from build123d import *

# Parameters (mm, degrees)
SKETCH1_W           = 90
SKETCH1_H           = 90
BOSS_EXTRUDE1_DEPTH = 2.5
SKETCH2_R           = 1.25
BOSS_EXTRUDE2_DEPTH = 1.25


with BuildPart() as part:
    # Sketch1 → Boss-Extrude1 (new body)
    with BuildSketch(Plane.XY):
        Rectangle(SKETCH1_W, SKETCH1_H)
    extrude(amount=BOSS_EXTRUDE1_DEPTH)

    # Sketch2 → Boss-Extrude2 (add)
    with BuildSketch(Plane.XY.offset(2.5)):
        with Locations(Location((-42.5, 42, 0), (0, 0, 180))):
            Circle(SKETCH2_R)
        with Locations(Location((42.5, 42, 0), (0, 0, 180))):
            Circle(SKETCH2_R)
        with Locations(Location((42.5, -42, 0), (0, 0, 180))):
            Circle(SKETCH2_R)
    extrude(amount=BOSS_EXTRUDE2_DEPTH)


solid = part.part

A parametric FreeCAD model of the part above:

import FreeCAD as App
import Part
import Sketcher

V = App.Vector
Q = App.Units.Quantity

doc = App.newDocument("Part")
body = doc.addObject("PartDesign::Body", "Body")

sketch1 = doc.addObject("Sketcher::SketchObject", "Sketch")
body.addObject(sketch1)
sketch1.AttachmentSupport = (doc.XY_Plane, [""])
sketch1.MapMode = "FlatFace"
sketch1.addGeometry([
    Part.LineSegment(V(-45, 45, 0), V(-45, -45, 0)),
    Part.LineSegment(V(-45, -45, 0), V(45, -45, 0)),
    Part.LineSegment(V(45, -45, 0), V(45, 45, 0)),
    Part.LineSegment(V(45, 45, 0), V(-45, 45, 0)),
], False)
sketch1.addConstraint([
    Sketcher.Constraint("Coincident", 0, 2, 1, 1),
    Sketcher.Constraint("Coincident", 1, 2, 2, 1),
    Sketcher.Constraint("Coincident", 2, 2, 3, 1),
    Sketcher.Constraint("Coincident", 3, 2, 0, 1),
    Sketcher.Constraint("Vertical", 0),
    Sketcher.Constraint("Horizontal", 1),
    Sketcher.Constraint("Vertical", 2),
    Sketcher.Constraint("Horizontal", 3),
    Sketcher.Constraint("Symmetric", 0, 2, 2, 2, -1, 1),
    Sketcher.Constraint("Equal", 3, 0),
    Sketcher.Constraint("DistanceX", 1, 1, 1, 2, Q("90 mm")),
])
pad1 = doc.addObject("PartDesign::Pad", "Pad")
body.addObject(pad1)
pad1.Profile = sketch1
pad1.Length = 2.5

sketch2 = doc.addObject("Sketcher::SketchObject", "Sketch001")
body.addObject(sketch2)
sketch2.AttachmentSupport = (doc.XY_Plane, [""])
sketch2.MapMode = "FlatFace"
sketch2.AttachmentOffset = App.Placement(V(0, 0, 2.5), App.Rotation())
sketch2.addGeometry([
    Part.Circle(V(-42.5, 42, 0), V(0, 0, 1), 1.25),
    Part.Circle(V(42.5, 42, 0), V(0, 0, 1), 1.25),
    Part.Circle(V(42.5, -42, 0), V(0, 0, 1), 1.25),
], False)
sketch2.addConstraint([
    Sketcher.Constraint("Equal", 0, 1),
    Sketcher.Constraint("Equal", 1, 2),
    Sketcher.Constraint("Symmetric", 0, 3, 2, 3, -1, 1),
    Sketcher.Constraint("Symmetric", 0, 3, 1, 3, -2),
    Sketcher.Constraint("Diameter", 0, Q("2.5 mm")),
    Sketcher.Constraint("DistanceY", -1, 1, 0, 3, Q("42 mm")),
    Sketcher.Constraint("DistanceX", 0, 3, 1, 3, Q("85 mm")),
])
pad2 = doc.addObject("PartDesign::Pad", "Pad001")
body.addObject(pad2)
pad2.Profile = sketch2
pad2.Length = 1.25

doc.recompute()
